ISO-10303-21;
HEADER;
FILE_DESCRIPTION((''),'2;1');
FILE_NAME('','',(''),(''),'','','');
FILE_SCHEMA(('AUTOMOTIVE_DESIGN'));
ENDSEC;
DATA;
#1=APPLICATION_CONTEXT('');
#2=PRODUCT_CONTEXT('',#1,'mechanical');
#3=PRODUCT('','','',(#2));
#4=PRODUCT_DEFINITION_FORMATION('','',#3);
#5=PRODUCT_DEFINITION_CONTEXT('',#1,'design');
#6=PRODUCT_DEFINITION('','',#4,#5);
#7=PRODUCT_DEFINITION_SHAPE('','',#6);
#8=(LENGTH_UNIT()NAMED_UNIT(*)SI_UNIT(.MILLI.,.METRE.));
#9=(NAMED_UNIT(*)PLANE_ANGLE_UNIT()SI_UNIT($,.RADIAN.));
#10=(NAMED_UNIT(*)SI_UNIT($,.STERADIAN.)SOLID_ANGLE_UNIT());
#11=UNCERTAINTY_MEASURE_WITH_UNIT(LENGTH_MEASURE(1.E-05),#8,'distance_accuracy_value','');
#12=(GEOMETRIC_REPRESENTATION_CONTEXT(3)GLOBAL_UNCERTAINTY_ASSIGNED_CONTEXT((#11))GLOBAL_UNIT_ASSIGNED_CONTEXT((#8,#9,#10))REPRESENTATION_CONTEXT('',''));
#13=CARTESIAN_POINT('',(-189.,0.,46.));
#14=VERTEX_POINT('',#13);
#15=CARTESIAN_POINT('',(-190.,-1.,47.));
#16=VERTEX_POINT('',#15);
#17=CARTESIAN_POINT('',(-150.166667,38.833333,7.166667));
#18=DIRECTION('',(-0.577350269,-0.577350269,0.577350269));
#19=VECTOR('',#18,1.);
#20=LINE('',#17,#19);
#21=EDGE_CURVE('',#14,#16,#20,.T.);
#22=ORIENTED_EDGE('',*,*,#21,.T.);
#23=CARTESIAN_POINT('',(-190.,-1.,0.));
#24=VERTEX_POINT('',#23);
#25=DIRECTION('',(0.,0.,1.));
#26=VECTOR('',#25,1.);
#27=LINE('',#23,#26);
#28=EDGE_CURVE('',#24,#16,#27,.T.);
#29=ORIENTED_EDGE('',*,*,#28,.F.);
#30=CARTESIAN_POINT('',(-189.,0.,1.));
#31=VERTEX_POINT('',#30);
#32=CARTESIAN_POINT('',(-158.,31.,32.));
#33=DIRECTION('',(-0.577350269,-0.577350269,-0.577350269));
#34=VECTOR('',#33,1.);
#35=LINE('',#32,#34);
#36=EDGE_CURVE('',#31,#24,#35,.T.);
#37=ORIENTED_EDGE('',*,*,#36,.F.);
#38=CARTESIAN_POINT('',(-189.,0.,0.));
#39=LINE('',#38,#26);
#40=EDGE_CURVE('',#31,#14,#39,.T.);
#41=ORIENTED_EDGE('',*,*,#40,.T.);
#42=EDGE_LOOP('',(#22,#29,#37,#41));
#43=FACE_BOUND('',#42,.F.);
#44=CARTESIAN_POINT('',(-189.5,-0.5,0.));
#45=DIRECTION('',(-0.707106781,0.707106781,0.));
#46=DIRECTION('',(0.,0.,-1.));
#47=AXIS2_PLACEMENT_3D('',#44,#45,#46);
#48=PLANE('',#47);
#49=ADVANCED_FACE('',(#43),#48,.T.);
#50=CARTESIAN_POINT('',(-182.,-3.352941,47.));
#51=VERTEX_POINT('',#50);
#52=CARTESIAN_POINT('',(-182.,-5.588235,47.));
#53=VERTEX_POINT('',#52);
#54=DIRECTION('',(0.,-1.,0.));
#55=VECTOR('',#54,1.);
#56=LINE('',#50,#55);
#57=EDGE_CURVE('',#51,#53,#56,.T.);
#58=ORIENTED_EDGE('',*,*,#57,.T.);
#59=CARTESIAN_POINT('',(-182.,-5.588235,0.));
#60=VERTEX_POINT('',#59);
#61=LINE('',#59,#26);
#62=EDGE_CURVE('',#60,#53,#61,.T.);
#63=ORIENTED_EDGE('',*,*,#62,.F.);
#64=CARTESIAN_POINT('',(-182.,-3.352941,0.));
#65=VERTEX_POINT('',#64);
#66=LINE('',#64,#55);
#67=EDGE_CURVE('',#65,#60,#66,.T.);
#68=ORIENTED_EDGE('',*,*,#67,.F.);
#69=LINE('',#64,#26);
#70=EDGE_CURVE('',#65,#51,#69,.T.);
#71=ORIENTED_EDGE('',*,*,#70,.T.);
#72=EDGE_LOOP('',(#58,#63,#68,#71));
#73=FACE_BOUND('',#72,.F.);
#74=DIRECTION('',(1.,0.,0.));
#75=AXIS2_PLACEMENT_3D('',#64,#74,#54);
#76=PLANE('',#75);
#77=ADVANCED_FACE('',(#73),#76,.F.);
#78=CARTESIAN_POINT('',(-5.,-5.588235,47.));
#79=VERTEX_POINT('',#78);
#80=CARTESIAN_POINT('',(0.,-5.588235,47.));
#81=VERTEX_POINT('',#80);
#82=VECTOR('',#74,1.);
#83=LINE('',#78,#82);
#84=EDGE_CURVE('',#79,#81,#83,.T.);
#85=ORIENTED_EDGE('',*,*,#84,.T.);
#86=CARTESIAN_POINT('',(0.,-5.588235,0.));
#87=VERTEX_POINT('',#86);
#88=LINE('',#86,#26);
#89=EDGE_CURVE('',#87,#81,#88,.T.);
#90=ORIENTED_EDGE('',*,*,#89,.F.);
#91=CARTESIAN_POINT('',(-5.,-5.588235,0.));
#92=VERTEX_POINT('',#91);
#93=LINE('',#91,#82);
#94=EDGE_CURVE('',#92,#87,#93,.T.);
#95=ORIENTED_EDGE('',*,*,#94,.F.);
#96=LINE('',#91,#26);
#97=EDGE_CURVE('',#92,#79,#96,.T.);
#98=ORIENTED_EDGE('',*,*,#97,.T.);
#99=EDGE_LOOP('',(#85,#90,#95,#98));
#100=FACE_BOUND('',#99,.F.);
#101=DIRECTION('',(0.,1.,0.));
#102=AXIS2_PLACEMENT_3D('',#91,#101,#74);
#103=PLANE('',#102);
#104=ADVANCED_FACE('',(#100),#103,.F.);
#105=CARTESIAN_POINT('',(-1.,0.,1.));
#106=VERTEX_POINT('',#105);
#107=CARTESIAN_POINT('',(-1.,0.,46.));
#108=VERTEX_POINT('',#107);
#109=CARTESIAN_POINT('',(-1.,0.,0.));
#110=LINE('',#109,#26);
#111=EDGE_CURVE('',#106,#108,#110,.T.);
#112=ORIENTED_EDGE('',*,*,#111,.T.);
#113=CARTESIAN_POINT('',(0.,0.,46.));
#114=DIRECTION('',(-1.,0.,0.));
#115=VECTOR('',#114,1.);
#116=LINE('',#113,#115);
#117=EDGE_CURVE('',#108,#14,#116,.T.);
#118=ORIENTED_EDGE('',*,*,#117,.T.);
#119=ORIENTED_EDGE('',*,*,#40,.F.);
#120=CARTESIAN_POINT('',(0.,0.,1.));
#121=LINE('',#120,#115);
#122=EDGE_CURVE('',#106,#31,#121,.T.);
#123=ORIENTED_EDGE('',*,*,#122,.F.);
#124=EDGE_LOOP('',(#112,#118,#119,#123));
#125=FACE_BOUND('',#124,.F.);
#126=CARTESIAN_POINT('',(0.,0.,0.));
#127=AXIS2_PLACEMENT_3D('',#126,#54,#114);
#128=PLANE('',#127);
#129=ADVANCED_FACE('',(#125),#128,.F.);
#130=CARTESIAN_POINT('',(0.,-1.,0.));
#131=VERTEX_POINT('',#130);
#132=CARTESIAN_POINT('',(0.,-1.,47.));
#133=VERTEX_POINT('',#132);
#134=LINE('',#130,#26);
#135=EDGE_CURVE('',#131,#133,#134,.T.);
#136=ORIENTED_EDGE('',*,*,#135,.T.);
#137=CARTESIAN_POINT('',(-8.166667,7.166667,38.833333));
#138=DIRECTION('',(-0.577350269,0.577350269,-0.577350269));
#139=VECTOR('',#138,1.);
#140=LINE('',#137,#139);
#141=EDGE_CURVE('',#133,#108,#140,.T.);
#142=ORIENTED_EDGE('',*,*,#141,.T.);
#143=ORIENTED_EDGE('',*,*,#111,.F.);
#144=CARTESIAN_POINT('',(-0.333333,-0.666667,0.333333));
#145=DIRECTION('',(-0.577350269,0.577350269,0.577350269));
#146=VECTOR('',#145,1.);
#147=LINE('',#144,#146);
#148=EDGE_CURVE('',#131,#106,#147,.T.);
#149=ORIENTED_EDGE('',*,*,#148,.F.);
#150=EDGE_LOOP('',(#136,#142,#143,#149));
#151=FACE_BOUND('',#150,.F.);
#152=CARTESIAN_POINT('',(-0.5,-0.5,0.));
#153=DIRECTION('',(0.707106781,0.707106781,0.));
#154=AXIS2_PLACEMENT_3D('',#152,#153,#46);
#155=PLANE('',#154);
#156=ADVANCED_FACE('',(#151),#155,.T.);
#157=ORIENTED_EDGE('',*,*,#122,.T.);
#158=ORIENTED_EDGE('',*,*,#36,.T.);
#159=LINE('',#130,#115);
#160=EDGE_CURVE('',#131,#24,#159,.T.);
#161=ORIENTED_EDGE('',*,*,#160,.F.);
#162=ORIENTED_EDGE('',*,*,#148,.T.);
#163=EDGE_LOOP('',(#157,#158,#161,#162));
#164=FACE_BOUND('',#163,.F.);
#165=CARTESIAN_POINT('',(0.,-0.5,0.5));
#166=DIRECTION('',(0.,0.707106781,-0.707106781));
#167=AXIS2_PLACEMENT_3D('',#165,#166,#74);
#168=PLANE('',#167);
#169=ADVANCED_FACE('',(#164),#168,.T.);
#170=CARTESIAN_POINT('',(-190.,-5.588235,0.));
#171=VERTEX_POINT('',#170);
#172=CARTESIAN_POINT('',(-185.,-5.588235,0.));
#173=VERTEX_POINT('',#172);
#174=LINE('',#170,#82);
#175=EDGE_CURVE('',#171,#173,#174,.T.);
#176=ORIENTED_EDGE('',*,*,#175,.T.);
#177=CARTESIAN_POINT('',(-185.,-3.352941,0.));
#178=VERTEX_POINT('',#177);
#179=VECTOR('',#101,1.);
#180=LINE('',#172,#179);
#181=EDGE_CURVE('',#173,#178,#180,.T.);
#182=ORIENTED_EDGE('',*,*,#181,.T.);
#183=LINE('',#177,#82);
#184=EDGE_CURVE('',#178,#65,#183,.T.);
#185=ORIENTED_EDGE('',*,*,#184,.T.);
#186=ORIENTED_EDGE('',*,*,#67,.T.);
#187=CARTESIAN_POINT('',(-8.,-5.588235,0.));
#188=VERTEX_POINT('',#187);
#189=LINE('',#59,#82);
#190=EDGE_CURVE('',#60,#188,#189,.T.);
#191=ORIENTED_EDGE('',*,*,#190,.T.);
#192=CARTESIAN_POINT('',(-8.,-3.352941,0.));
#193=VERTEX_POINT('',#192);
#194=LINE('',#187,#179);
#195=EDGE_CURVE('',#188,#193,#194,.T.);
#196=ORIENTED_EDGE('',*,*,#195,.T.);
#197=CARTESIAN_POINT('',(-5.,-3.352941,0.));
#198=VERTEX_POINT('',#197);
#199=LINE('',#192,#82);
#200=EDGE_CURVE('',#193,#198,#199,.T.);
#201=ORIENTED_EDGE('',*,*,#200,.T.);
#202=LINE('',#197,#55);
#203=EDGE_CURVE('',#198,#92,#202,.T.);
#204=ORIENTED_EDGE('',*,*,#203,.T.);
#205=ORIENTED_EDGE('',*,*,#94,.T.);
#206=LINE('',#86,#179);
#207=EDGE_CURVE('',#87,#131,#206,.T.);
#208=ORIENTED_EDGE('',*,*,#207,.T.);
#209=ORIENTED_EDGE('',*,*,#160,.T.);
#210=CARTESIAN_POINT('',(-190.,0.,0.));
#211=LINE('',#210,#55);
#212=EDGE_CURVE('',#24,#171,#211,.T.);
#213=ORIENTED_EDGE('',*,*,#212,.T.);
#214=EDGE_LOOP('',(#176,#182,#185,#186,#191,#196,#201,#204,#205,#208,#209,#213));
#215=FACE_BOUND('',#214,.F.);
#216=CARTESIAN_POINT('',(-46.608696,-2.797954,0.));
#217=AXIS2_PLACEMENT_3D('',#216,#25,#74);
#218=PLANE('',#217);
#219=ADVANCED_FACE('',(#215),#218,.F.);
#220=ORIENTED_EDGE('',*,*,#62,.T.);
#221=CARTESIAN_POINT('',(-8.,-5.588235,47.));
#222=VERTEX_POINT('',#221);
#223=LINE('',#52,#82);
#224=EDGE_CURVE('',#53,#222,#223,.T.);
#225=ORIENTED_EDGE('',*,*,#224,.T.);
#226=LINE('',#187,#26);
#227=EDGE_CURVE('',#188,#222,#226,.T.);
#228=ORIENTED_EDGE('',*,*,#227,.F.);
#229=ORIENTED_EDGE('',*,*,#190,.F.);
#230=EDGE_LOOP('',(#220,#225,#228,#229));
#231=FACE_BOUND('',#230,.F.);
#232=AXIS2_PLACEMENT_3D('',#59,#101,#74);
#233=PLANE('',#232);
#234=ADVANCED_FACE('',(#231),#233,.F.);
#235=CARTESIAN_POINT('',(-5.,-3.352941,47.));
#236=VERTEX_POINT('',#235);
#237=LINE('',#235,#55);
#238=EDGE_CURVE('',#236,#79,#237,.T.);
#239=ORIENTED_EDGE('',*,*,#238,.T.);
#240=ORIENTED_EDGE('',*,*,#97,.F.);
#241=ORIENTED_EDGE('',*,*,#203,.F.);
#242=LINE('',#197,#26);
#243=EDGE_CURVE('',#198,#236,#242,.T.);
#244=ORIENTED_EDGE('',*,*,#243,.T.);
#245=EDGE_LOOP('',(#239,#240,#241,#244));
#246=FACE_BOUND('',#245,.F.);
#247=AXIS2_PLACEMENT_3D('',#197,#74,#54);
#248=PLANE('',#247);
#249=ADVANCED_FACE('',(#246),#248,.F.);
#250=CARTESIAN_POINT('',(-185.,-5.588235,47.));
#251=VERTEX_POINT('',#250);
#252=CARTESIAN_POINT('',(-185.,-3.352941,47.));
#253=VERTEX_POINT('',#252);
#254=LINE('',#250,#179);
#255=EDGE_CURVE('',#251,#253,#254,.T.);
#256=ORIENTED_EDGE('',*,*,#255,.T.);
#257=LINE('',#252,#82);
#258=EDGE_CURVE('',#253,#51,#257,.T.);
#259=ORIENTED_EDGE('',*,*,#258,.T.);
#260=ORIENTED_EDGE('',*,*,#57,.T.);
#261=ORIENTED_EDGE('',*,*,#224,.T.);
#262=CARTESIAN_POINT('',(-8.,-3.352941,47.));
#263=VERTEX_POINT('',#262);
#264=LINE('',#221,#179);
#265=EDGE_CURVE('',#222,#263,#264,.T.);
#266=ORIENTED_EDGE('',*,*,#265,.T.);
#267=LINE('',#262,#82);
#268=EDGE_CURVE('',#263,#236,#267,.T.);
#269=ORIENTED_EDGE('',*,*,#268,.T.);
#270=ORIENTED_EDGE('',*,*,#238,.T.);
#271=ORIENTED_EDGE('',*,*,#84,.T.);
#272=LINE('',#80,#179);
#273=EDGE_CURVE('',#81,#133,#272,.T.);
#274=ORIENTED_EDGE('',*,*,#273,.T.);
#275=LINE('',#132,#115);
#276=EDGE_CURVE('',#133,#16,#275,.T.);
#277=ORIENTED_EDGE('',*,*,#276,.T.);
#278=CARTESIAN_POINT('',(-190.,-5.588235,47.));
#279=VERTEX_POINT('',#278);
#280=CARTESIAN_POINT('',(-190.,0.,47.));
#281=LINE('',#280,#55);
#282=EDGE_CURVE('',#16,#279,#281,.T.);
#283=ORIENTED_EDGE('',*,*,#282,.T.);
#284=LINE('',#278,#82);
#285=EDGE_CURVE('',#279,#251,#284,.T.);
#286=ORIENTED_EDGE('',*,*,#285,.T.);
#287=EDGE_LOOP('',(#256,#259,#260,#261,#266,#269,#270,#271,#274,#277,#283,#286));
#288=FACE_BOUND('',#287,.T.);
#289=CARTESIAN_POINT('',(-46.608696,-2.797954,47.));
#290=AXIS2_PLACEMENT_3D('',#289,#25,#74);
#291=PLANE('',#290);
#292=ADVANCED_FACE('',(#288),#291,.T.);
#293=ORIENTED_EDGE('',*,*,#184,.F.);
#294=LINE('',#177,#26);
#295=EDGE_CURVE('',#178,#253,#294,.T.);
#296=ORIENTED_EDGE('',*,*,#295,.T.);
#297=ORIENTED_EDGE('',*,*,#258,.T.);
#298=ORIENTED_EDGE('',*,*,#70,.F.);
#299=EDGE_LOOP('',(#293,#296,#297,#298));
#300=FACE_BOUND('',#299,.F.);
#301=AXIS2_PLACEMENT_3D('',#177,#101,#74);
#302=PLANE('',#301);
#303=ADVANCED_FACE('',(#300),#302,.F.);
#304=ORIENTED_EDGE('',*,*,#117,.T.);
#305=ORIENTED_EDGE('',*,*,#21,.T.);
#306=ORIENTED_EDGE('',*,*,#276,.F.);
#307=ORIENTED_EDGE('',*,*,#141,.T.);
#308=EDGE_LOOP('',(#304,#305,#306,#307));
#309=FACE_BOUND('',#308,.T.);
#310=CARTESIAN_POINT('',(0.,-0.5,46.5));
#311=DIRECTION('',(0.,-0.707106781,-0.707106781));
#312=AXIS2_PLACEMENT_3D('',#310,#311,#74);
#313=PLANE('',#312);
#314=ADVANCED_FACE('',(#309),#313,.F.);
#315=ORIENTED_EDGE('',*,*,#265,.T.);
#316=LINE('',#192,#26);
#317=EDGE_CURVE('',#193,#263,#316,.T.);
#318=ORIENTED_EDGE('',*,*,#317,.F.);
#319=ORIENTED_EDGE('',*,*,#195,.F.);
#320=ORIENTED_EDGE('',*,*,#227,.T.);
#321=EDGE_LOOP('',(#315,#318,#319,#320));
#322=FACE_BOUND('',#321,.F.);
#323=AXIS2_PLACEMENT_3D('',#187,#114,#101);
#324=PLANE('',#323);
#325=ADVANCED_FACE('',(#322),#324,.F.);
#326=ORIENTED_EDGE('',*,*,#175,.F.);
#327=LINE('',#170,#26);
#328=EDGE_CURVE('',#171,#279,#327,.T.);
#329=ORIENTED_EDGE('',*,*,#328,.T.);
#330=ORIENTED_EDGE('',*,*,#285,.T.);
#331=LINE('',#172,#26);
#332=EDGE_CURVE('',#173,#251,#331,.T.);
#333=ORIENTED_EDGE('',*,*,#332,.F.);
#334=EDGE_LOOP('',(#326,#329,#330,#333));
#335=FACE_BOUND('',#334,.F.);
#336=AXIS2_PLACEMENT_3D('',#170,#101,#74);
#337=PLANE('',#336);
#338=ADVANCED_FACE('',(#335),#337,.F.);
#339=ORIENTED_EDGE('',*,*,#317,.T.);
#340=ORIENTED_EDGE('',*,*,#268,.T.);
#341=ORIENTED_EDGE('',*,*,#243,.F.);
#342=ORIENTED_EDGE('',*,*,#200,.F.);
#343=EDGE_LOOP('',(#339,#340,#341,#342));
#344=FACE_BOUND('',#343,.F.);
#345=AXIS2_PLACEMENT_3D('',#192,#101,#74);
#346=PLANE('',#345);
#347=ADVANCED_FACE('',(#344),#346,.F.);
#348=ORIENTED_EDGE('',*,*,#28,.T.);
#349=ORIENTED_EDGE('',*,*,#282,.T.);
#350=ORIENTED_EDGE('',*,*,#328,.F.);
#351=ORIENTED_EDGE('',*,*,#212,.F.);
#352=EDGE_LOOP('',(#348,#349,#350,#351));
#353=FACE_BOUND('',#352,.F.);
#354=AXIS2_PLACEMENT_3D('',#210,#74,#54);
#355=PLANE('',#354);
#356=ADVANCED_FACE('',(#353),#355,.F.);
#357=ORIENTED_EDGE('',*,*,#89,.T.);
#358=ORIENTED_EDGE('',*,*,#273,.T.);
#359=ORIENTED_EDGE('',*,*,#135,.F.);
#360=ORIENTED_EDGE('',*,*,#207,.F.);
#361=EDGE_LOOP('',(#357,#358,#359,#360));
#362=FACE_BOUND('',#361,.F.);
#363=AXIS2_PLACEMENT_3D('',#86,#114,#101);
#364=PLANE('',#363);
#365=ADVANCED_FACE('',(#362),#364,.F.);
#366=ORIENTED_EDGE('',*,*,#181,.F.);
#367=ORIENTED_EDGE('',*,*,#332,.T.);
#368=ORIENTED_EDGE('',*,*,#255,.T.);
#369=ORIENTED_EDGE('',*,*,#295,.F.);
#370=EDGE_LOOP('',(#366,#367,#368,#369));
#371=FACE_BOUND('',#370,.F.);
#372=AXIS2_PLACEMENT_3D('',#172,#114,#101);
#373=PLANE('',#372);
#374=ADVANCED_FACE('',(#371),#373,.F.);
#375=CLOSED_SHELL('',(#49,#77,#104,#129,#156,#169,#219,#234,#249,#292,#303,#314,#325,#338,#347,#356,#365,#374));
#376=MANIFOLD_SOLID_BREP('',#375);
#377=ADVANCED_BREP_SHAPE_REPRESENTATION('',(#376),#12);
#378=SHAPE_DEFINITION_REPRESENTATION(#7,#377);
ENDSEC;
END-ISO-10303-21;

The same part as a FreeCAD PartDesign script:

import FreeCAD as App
import Part
import Sketcher
from FreeCAD import Vector
Q = App.Units.Quantity


def edges_at(feature, points):
    """Names of the edges that pass closest to the given points."""
    edges = feature.Shape.Edges
    near = lambda p: min(range(len(edges)), key=lambda i: edges[i].distToShape(Part.Vertex(*p))[0])
    return sorted({f"Edge{near(p) + 1}" for p in points})

doc = App.newDocument("Part")
params = doc.addObject("Spreadsheet::Sheet", "Params")
for row, (alias, value) in enumerate([
    ("sketch1_width", "190 mm"),
    ("sketch1_width2", "5 mm"),
    ("sketch1_width3", "3 mm"),
    ("pad1_length", "47 mm"),
    ("chamfer_size", "1 mm"),
], start=1):
    params.set(f"A{row}", alias)
    params.set(f"B{row}", "=" + value)
    params.setAlias(f"B{row}", alias)

body = doc.addObject("PartDesign::Body", "Body")

# Sketch on XY plane
sketch1 = doc.addObject("Sketcher::SketchObject", "Sketch")
body.addObject(sketch1)
sketch1.AttachmentSupport = (doc.XY_Plane, [""])
sketch1.MapMode = "FlatFace"
sketch1.addGeometry(Part.LineSegment(Vector(0, -5.6, 0), Vector(0, 0, 0)), False)
sketch1.addGeometry(Part.LineSegment(Vector(0, 0, 0), Vector(-190, 0, 0)), False)
sketch1.addGeometry(Part.LineSegment(Vector(-190, 0, 0), Vector(-190, -5.6, 0)), False)
sketch1.addGeometry(Part.LineSegment(Vector(-190, -5.6, 0), Vector(-185, -5.6, 0)), False)
sketch1.addGeometry(Part.LineSegment(Vector(-185, -5.6, 0), Vector(-185, -3.4, 0)), False)
sketch1.addGeometry(Part.LineSegment(Vector(-185, -3.4, 0), Vector(-182, -3.4, 0)), False)
sketch1.addGeometry(Part.LineSegment(Vector(-182, -3.4, 0), Vector(-182, -5.6, 0)), False)
sketch1.addGeometry(Part.LineSegment(Vector(-182, -5.6, 0), Vector(-8, -5.6, 0)), False)
sketch1.addGeometry(Part.LineSegment(Vector(-8, -5.6, 0), Vector(-8, -3.4, 0)), False)
sketch1.addGeometry(Part.LineSegment(Vector(-8, -3.4, 0), Vector(-5, -3.4, 0)), False)
sketch1.addGeometry(Part.LineSegment(Vector(-5, -3.4, 0), Vector(-5, -5.6, 0)), False)
sketch1.addGeometry(Part.LineSegment(Vector(-5, -5.6, 0), Vector(0, -5.6, 0)), False)
sketch1.addConstraint(Sketcher.Constraint("Coincident", 0, 2, 1, 1))
sketch1.addConstraint(Sketcher.Constraint("Coincident", 1, 2, 2, 1))
sketch1.addConstraint(Sketcher.Constraint("Coincident", 2, 2, 3, 1))
sketch1.addConstraint(Sketcher.Constraint("Coincident", 3, 2, 4, 1))
sketch1.addConstraint(Sketcher.Constraint("Coincident", 4, 2, 5, 1))
sketch1.addConstraint(Sketcher.Constraint("Coincident", 5, 2, 6, 1))
sketch1.addConstraint(Sketcher.Constraint("Coincident", 6, 2, 7, 1))
sketch1.addConstraint(Sketcher.Constraint("Coincident", 7, 2, 8, 1))
sketch1.addConstraint(Sketcher.Constraint("Coincident", 8, 2, 9, 1))
sketch1.addConstraint(Sketcher.Constraint("Coincident", 9, 2, 10, 1))
sketch1.addConstraint(Sketcher.Constraint("Coincident", 10, 2, 11, 1))
sketch1.addConstraint(Sketcher.Constraint("Coincident", 11, 2, 0, 1))
sketch1.addConstraint(Sketcher.Constraint("Vertical", 0))
sketch1.addConstraint(Sketcher.Constraint("Horizontal", 1))
sketch1.addConstraint(Sketcher.Constraint("Vertical", 2))
sketch1.addConstraint(Sketcher.Constraint("Horizontal", 3))
sketch1.addConstraint(Sketcher.Constraint("Vertical", 4))
sketch1.addConstraint(Sketcher.Constraint("Horizontal", 5))
sketch1.addConstraint(Sketcher.Constraint("Vertical", 6))
sketch1.addConstraint(Sketcher.Constraint("Horizontal", 7))
sketch1.addConstraint(Sketcher.Constraint("Vertical", 8))
sketch1.addConstraint(Sketcher.Constraint("Horizontal", 9))
sketch1.addConstraint(Sketcher.Constraint("Vertical", 10))
sketch1.addConstraint(Sketcher.Constraint("Horizontal", 11))
sketch1.addConstraint(Sketcher.Constraint("Coincident", 0, 2, -1, 1))
sketch1.addConstraint(Sketcher.Constraint("Horizontal", 3, 2, 6, 2))
sketch1.addConstraint(Sketcher.Constraint("Horizontal", 5, 2, 8, 2))
sketch1.addConstraint(Sketcher.Constraint("Horizontal", 7, 2, 10, 2))
sketch1.addConstraint(Sketcher.Constraint("Equal", 5, 9))
sketch1.addConstraint(Sketcher.Constraint("Equal", 3, 11))
sketch1.addConstraint(Sketcher.Constraint("DistanceX", 1, 2, 1, 1, Q("190 mm")))
sketch1.addConstraint(Sketcher.Constraint("DistanceX", 3, 1, 3, 2, Q("5 mm")))
sketch1.addConstraint(Sketcher.Constraint("DistanceX", 5, 1, 5, 2, Q("3 mm")))
sketch1.addConstraint(Sketcher.Constraint("DistanceY", 0, 1, 0, 2, Q("5.588235 mm")))
sketch1.addConstraint(Sketcher.Constraint("DistanceY", 4, 1, 4, 2, Q("2.235294 mm")))
sketch1.setExpression("Constraints[30]", "Params.sketch1_width")
sketch1.setExpression("Constraints[31]", "Params.sketch1_width2")
sketch1.setExpression("Constraints[32]", "Params.sketch1_width3")
pad1 = doc.addObject("PartDesign::Pad", "Pad")
body.addObject(pad1)
pad1.Profile = sketch1
pad1.setExpression("Length", "Params.pad1_length")
doc.recompute()

chamfer = doc.addObject("PartDesign::Chamfer", "Chamfer")
body.addObject(chamfer)
chamfer.Base = (pad1, edges_at(pad1, [
    (0, 0, 23.5),
    (-95, 0, 47),
    (-190, 0, 23.5),
    (-95, 0, 0),
]))
chamfer.setExpression("Size", "Params.chamfer_size")

doc.recompute()
